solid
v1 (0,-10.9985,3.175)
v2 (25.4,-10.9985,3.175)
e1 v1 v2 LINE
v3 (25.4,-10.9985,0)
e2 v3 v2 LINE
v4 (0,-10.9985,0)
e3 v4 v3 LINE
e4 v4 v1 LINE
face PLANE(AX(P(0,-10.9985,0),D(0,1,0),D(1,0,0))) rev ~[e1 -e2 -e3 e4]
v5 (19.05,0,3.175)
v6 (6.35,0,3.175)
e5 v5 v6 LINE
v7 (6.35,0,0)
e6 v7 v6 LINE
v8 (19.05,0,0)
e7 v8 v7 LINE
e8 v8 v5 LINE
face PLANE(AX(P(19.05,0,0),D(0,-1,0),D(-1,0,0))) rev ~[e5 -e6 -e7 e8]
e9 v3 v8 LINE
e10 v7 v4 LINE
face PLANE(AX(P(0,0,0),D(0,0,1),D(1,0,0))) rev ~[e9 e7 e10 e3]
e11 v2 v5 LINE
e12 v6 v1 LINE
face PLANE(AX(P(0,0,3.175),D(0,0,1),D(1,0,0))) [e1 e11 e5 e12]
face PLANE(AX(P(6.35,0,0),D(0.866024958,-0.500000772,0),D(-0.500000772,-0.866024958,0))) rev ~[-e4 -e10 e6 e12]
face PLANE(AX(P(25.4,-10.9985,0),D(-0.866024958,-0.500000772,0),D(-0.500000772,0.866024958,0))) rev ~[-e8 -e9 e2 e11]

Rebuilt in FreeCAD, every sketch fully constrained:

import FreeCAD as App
import Part
import Sketcher
from FreeCAD import Vector
Q = App.Units.Quantity

doc = App.newDocument("Part")
body = doc.addObject("PartDesign::Body", "Body")

# Sketch on XY plane
sketch1 = body.newObject("Sketcher::SketchObject", "Sketch")
sketch1.AttachmentSupport = (doc.getObject("XY_Plane"), [""])
sketch1.MapMode = "FlatFace"
sketch1.addGeometry(Part.LineSegment(Vector(25.4, -10.9985, 0), Vector(19.05, 0, 0)), False)
sketch1.addGeometry(Part.LineSegment(Vector(19.05, 0, 0), Vector(6.35, 0, 0)), False)
sketch1.addGeometry(Part.LineSegment(Vector(6.35, 0, 0), Vector(0, -10.9985, 0)), False)
sketch1.addGeometry(Part.LineSegment(Vector(0, -10.9985, 0), Vector(25.4, -10.9985, 0)), False)
sketch1.addConstraint(Sketcher.Constraint("Coincident", 0, 2, 1, 1))
sketch1.addConstraint(Sketcher.Constraint("Coincident", 1, 2, 2, 1))
sketch1.addConstraint(Sketcher.Constraint("Coincident", 2, 2, 3, 1))
sketch1.addConstraint(Sketcher.Constraint("Coincident", 3, 2, 0, 1))
sketch1.addConstraint(Sketcher.Constraint("Horizontal", 1))
sketch1.addConstraint(Sketcher.Constraint("Horizontal", 3))
sketch1.addConstraint(Sketcher.Constraint("PointOnObject", 0, 2, -1))
sketch1.addConstraint(Sketcher.Constraint("PointOnObject", 2, 2, -2))
sketch1.addConstraint(Sketcher.Constraint("Equal", 0, 2))
sketch1.addConstraint(Sketcher.Constraint("DistanceX", 3, 1, 3, 2, Q("1 in")))
sketch1.addConstraint(Sketcher.Constraint("DistanceX", 1, 2, 1, 1, Q("0.5 in")))
sketch1.addConstraint(Sketcher.Constraint("Angle", 0, Q("120 deg")))
pad1 = body.newObject("PartDesign::Pad", "Pad")
pad1.Profile = sketch1
pad1.Length = Q("0.125 in")

doc.recompute()
